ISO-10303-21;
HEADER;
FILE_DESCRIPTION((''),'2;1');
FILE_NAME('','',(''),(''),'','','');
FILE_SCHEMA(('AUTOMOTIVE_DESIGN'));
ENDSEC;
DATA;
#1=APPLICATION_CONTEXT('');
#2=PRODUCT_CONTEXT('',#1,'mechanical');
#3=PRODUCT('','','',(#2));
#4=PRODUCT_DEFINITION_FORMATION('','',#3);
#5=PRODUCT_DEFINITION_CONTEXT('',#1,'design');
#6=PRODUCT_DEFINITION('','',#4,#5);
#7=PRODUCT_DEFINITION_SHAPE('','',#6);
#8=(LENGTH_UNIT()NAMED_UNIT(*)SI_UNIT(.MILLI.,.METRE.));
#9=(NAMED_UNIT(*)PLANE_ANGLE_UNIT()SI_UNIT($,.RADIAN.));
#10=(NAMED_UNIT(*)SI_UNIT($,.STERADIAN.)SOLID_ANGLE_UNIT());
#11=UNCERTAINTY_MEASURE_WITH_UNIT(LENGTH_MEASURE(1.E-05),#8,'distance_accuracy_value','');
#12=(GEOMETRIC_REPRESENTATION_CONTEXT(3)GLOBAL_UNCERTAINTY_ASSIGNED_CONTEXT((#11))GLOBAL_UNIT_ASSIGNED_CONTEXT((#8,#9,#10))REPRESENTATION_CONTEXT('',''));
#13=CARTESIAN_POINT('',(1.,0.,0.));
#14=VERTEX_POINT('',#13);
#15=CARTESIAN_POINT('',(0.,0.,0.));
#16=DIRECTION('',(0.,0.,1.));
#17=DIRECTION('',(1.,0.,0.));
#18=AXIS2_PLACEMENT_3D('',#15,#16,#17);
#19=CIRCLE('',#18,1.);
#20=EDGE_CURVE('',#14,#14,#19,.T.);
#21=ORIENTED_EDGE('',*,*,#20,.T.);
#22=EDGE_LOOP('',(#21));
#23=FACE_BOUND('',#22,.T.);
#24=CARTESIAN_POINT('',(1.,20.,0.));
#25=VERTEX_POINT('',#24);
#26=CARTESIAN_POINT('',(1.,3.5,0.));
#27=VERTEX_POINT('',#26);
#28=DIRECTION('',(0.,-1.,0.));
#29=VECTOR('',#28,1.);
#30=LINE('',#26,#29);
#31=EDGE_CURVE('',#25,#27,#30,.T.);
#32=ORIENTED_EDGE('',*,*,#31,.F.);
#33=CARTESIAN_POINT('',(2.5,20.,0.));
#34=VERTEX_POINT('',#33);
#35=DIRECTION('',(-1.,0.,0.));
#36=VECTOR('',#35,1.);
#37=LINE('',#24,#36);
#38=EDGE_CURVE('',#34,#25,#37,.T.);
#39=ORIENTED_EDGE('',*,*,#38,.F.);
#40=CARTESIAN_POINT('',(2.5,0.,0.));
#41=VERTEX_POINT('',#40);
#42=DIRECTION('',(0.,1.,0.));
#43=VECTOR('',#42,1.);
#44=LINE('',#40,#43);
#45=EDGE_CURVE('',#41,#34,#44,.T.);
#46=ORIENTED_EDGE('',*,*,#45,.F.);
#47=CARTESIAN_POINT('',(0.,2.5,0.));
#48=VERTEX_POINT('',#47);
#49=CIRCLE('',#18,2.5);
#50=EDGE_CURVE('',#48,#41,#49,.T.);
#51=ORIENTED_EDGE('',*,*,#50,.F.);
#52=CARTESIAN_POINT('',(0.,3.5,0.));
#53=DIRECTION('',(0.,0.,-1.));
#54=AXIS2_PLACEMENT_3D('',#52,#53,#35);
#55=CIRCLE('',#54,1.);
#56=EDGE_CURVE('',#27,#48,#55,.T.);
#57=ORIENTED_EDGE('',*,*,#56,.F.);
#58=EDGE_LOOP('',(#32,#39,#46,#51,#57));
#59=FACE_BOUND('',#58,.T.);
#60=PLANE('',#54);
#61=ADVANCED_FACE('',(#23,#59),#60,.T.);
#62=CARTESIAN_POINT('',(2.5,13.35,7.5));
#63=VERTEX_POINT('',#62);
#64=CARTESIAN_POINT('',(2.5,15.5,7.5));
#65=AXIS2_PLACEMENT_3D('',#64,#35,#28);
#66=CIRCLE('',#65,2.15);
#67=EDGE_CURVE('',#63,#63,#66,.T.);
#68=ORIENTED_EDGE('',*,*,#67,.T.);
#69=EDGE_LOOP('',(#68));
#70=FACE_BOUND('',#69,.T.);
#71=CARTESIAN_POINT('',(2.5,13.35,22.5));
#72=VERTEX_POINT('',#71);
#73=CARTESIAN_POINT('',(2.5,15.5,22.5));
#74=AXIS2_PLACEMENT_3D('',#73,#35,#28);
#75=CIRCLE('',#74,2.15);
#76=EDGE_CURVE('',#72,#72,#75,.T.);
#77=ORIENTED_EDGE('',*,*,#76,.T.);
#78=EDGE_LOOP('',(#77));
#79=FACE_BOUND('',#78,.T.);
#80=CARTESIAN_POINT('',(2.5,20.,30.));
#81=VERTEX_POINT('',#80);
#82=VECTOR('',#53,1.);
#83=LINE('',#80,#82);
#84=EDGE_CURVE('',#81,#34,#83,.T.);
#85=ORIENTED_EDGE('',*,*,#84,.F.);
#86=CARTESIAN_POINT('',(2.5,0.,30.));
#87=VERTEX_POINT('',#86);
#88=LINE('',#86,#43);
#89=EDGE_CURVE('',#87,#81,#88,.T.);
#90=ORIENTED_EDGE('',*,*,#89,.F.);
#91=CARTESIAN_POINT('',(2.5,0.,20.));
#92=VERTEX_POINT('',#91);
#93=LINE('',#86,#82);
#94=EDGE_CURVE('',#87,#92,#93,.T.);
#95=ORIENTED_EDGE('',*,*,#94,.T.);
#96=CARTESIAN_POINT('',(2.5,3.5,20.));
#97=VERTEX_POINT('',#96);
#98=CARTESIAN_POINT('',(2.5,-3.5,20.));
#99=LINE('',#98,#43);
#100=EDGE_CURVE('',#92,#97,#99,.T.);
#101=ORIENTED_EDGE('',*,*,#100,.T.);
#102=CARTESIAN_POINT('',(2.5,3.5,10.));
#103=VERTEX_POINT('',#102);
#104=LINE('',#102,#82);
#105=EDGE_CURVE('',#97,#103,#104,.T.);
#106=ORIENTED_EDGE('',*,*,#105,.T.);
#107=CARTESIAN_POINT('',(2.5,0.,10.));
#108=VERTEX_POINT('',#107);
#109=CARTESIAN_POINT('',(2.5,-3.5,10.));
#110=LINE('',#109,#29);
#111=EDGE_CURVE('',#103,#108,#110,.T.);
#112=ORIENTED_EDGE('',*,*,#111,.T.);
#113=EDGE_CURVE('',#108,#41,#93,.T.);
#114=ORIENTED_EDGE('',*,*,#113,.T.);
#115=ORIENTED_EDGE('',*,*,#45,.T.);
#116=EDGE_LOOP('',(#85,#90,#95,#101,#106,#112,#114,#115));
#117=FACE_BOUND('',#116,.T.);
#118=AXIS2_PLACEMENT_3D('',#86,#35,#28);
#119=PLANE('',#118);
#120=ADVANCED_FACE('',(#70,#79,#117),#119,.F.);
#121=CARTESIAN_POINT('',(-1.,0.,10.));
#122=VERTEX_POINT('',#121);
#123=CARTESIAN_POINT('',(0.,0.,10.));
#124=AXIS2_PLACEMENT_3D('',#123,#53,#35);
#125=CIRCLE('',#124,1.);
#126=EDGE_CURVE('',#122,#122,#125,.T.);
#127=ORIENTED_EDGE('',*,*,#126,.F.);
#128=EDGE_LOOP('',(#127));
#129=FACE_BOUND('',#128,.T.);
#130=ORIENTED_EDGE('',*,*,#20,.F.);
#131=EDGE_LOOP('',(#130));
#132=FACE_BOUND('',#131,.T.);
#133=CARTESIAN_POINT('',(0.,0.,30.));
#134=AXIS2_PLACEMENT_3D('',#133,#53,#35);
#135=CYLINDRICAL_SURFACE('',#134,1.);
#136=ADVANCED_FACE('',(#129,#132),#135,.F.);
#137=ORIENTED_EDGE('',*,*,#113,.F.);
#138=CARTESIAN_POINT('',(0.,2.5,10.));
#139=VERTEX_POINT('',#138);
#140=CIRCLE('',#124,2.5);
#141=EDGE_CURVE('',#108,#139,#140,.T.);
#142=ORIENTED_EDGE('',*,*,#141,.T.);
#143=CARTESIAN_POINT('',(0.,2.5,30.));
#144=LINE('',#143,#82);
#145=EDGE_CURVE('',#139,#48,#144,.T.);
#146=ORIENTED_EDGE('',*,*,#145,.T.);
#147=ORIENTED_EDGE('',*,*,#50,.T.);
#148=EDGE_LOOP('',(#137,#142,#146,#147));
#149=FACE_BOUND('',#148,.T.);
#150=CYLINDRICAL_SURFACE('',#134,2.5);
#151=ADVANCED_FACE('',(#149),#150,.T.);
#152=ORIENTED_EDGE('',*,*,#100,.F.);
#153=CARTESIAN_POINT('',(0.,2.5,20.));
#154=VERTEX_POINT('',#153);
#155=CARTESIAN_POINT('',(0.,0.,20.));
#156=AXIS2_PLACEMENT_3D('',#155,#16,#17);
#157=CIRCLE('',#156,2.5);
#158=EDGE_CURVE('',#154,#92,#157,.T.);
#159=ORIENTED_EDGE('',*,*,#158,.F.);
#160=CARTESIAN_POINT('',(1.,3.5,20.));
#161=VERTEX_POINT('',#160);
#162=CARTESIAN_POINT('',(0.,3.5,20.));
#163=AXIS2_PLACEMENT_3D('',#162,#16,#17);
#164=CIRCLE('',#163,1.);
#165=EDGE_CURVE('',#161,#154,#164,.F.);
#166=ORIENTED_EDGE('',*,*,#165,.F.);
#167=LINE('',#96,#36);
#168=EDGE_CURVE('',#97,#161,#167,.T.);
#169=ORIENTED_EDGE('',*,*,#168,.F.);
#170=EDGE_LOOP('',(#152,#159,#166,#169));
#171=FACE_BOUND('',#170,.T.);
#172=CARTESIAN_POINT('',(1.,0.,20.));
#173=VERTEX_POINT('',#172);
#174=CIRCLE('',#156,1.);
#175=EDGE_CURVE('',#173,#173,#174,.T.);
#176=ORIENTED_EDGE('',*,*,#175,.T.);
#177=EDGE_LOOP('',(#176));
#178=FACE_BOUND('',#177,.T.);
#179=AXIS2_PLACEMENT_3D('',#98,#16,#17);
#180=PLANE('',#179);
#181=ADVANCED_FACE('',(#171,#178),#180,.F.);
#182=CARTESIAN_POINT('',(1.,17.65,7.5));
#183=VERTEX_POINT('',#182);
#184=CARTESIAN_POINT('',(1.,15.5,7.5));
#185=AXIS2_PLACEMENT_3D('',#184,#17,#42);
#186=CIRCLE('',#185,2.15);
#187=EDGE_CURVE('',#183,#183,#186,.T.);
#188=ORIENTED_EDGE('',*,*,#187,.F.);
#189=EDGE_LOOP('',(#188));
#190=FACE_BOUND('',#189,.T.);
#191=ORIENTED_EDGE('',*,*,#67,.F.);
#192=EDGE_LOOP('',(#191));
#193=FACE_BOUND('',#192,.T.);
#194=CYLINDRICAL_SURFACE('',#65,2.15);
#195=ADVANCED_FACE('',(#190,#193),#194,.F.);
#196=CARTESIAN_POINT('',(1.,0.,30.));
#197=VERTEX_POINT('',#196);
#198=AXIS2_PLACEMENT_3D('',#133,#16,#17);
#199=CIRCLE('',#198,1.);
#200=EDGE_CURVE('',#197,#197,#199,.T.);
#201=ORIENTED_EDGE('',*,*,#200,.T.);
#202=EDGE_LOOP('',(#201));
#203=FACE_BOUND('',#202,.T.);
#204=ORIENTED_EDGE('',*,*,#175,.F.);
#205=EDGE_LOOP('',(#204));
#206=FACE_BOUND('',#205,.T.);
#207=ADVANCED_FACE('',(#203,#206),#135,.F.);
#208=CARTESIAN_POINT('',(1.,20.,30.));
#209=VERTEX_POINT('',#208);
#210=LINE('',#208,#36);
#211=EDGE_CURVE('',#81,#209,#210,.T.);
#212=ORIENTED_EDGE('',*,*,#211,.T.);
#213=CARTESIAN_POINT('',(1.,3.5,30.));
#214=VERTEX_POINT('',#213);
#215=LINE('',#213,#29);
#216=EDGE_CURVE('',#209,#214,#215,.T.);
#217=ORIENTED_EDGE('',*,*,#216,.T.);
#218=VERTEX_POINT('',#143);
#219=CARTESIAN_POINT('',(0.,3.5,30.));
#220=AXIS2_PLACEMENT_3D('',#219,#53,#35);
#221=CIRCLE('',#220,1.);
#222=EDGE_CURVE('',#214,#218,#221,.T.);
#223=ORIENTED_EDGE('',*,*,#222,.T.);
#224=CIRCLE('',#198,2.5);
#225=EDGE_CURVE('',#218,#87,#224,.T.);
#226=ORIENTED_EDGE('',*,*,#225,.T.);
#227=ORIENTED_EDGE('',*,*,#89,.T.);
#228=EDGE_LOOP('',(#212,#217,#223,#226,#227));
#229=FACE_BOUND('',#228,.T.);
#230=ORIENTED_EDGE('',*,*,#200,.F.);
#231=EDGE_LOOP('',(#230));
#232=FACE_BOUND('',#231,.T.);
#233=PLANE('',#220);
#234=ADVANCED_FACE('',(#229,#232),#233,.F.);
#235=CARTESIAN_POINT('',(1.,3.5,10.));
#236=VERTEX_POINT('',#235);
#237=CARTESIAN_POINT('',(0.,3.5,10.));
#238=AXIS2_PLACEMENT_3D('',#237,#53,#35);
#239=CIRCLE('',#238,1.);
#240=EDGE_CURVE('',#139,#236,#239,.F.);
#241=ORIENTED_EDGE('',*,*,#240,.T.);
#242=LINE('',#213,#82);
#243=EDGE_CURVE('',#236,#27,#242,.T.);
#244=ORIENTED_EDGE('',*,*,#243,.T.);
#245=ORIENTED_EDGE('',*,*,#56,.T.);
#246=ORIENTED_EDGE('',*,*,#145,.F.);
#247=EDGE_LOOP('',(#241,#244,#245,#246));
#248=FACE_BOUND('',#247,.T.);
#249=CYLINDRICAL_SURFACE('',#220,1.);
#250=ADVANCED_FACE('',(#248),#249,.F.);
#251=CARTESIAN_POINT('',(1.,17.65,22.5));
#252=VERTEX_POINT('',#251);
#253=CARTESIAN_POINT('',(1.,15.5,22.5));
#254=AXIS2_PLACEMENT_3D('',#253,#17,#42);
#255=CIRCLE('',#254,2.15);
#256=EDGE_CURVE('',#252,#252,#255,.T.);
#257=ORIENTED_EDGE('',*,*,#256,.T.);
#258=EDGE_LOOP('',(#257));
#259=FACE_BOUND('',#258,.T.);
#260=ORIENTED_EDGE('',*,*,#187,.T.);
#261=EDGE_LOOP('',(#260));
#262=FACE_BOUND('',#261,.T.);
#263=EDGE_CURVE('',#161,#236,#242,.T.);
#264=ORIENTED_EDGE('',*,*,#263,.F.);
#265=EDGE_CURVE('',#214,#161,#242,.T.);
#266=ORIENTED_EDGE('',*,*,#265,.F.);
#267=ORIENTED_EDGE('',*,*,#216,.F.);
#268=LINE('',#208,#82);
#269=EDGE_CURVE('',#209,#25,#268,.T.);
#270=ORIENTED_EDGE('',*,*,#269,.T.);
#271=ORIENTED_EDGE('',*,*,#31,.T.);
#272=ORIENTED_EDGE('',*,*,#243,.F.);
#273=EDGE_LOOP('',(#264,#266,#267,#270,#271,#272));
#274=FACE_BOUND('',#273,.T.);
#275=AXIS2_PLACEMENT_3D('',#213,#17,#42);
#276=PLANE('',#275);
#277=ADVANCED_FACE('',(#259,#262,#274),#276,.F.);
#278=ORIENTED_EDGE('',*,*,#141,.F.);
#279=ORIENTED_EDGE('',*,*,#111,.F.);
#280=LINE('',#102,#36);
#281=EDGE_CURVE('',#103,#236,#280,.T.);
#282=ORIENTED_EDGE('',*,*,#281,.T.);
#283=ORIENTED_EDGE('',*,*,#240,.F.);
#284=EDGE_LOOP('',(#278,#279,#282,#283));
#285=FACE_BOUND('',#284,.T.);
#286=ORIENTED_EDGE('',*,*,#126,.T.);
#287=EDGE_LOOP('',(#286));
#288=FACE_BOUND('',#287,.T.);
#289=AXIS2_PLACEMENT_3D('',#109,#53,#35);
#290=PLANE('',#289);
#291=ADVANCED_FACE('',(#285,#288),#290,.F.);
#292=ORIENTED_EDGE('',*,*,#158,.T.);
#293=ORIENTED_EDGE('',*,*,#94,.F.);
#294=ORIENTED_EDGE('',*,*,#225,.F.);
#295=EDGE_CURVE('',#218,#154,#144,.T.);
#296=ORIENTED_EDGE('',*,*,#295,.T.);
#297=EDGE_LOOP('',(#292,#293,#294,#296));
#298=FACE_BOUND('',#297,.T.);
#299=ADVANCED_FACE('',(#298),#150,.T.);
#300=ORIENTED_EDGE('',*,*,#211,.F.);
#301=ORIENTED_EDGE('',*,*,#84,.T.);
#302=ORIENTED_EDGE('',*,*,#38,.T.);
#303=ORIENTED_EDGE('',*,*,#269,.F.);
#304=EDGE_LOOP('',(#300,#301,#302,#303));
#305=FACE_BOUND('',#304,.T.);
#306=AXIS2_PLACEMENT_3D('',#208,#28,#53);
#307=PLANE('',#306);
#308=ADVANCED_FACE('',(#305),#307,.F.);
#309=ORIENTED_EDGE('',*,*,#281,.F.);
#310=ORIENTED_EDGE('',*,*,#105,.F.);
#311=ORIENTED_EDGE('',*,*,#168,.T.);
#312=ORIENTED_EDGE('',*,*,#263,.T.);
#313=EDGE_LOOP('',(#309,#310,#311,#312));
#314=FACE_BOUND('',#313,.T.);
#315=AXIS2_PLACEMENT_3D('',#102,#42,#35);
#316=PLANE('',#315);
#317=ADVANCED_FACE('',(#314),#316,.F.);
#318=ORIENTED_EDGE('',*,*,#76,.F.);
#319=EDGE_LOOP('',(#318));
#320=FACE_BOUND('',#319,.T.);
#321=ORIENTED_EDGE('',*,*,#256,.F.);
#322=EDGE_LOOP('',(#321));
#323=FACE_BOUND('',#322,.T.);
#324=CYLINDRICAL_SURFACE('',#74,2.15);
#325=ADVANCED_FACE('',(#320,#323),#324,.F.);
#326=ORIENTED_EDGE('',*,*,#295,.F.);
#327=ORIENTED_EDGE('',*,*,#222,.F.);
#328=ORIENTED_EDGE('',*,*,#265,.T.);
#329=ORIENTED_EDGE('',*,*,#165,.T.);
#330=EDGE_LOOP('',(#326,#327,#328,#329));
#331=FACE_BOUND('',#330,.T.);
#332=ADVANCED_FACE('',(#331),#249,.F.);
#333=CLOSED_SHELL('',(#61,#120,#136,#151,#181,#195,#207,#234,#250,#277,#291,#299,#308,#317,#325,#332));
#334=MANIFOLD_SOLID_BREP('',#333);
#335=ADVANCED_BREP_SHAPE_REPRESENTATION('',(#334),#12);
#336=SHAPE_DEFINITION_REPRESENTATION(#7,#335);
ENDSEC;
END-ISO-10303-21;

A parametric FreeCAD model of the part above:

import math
import FreeCAD as App
import Part
import Sketcher
Q = App.Units.Quantity

doc = App.newDocument("Part")
body = doc.addObject("PartDesign::Body", "Body")

# Sketch on XY plane
sketch1 = body.newObject("Sketcher::SketchObject", "Sketch")
sketch1.AttachmentSupport = (doc.getObject("XY_Plane"), [""])
sketch1.MapMode = "FlatFace"
sketch1.addGeometry(Part.LineSegment(App.Vector(1, 20, 0), App.Vector(1, 3.5, 0)), False)
sketch1.addGeometry(Part.ArcOfCircle(Part.Circle(App.Vector(0, 3.5, 0), App.Vector(0, 0, 1), 1), math.radians(-90), math.radians(0)), False)
sketch1.addGeometry(Part.ArcOfCircle(Part.Circle(App.Vector(0, 0, 0), App.Vector(0, 0, 1), 2.5), math.radians(90), math.radians(360)), False)
sketch1.addGeometry(Part.LineSegment(App.Vector(2.5, 0, 0), App.Vector(2.5, 20, 0)), False)
sketch1.addGeometry(Part.LineSegment(App.Vector(2.5, 20, 0), App.Vector(1, 20, 0)), False)
sketch1.addGeometry(Part.Circle(App.Vector(0, 0, 0), App.Vector(0, 0, 1), 1), False)
sketch1.addConstraint(Sketcher.Constraint("Tangent", 0, 2, 1, 2))
sketch1.addConstraint(Sketcher.Constraint("Tangent", 1, 1, 2, 1))
sketch1.addConstraint(Sketcher.Constraint("Tangent", 2, 2, 3, 1))
sketch1.addConstraint(Sketcher.Constraint("Coincident", 3, 2, 4, 1))
sketch1.addConstraint(Sketcher.Constraint("Coincident", 4, 2, 0, 1))
sketch1.addConstraint(Sketcher.Constraint("Vertical", 0))
sketch1.addConstraint(Sketcher.Constraint("Vertical", 3))
sketch1.addConstraint(Sketcher.Constraint("Horizontal", 4))
sketch1.addConstraint(Sketcher.Constraint("Coincident", 2, 3, -1, 1))
sketch1.addConstraint(Sketcher.Constraint("Coincident", 5, 3, -1, 1))
sketch1.addConstraint(Sketcher.Constraint("Equal", 1, 5))
sketch1.addConstraint(Sketcher.Constraint("PointOnObject", 1, 3, -2))
sketch1.addConstraint(Sketcher.Constraint("Diameter", 5, Q("2 mm")))
sketch1.addConstraint(Sketcher.Constraint("Radius", 2, Q("2.5 mm")))
sketch1.addConstraint(Sketcher.Constraint("DistanceY", 3, 1, 3, 2, Q("20 mm")))
pad1 = body.newObject("PartDesign::Pad", "Pad")
pad1.Profile = sketch1
pad1.Length = 30

# Sketch on YZ plane
sketch2 = body.newObject("Sketcher::SketchObject", "Sketch001")
sketch2.AttachmentSupport = (doc.getObject("YZ_Plane"), [""])
sketch2.MapMode = "FlatFace"
sketch2.AttachmentOffset = App.Placement(App.Vector(0, 0, 1), App.Rotation())
sketch2.addGeometry(Part.Circle(App.Vector(15.5, 7.5, 0), App.Vector(0, 0, 1), 2.1), False)
sketch2.addGeometry(Part.Circle(App.Vector(15.5, 22.5, 0), App.Vector(0, 0, 1), 2.1), False)
sketch2.addGeometry(Part.LineSegment(App.Vector(3.5, 10, 0), App.Vector(-3.5, 10, 0)), False)
sketch2.addGeometry(Part.LineSegment(App.Vector(-3.5, 10, 0), App.Vector(-3.5, 20, 0)), False)
sketch2.addGeometry(Part.LineSegment(App.Vector(-3.5, 20, 0), App.Vector(3.5, 20, 0)), False)
sketch2.addGeometry(Part.LineSegment(App.Vector(3.5, 20, 0), App.Vector(3.5, 10, 0)), False)
sketch2.addConstraint(Sketcher.Constraint("Coincident", 2, 2, 3, 1))
sketch2.addConstraint(Sketcher.Constraint("Coincident", 3, 2, 4, 1))
sketch2.addConstraint(Sketcher.Constraint("Coincident", 4, 2, 5, 1))
sketch2.addConstraint(Sketcher.Constraint("Coincident", 5, 2, 2, 1))
sketch2.addConstraint(Sketcher.Constraint("Horizontal", 2))
sketch2.addConstraint(Sketcher.Constraint("Vertical", 3))
sketch2.addConstraint(Sketcher.Constraint("Horizontal", 4))
sketch2.addConstraint(Sketcher.Constraint("Vertical", 5))
sketch2.addConstraint(Sketcher.Constraint("Equal", 0, 1))
sketch2.addConstraint(Sketcher.Constraint("Vertical", 0, 3, 1, 3))
sketch2.addConstraint(Sketcher.Constraint("Diameter", 0, Q("4.3 mm")))
sketch2.addConstraint(Sketcher.Constraint("DistanceX", 2, 2, 2, 1, Q("7 mm")))
sketch2.addConstraint(Sketcher.Constraint("DistanceY", 3, 1, 3, 2, Q("10 mm")))
sketch2.addConstraint(Sketcher.Constraint("DistanceY", -1, 1, 2, 2, Q("10 mm")))
sketch2.addConstraint(Sketcher.Constraint("DistanceY", 0, 3, 1, 3, Q("15 mm")))
sketch2.addConstraint(Sketcher.Constraint("DistanceX", 2, 2, 0, 3, Q("19 mm")))
sketch2.addConstraint(Sketcher.Constraint("DistanceX", -1, 1, 0, 3, Q("15.5 mm")))
sketch2.addConstraint(Sketcher.Constraint("DistanceY", -1, 1, 0, 3, Q("7.5 mm")))
pocket1 = body.newObject("PartDesign::Pocket", "Pocket")
pocket1.Profile = sketch2
pocket1.Type = "ThroughAll"
pocket1.Midplane = True

doc.recompute()
